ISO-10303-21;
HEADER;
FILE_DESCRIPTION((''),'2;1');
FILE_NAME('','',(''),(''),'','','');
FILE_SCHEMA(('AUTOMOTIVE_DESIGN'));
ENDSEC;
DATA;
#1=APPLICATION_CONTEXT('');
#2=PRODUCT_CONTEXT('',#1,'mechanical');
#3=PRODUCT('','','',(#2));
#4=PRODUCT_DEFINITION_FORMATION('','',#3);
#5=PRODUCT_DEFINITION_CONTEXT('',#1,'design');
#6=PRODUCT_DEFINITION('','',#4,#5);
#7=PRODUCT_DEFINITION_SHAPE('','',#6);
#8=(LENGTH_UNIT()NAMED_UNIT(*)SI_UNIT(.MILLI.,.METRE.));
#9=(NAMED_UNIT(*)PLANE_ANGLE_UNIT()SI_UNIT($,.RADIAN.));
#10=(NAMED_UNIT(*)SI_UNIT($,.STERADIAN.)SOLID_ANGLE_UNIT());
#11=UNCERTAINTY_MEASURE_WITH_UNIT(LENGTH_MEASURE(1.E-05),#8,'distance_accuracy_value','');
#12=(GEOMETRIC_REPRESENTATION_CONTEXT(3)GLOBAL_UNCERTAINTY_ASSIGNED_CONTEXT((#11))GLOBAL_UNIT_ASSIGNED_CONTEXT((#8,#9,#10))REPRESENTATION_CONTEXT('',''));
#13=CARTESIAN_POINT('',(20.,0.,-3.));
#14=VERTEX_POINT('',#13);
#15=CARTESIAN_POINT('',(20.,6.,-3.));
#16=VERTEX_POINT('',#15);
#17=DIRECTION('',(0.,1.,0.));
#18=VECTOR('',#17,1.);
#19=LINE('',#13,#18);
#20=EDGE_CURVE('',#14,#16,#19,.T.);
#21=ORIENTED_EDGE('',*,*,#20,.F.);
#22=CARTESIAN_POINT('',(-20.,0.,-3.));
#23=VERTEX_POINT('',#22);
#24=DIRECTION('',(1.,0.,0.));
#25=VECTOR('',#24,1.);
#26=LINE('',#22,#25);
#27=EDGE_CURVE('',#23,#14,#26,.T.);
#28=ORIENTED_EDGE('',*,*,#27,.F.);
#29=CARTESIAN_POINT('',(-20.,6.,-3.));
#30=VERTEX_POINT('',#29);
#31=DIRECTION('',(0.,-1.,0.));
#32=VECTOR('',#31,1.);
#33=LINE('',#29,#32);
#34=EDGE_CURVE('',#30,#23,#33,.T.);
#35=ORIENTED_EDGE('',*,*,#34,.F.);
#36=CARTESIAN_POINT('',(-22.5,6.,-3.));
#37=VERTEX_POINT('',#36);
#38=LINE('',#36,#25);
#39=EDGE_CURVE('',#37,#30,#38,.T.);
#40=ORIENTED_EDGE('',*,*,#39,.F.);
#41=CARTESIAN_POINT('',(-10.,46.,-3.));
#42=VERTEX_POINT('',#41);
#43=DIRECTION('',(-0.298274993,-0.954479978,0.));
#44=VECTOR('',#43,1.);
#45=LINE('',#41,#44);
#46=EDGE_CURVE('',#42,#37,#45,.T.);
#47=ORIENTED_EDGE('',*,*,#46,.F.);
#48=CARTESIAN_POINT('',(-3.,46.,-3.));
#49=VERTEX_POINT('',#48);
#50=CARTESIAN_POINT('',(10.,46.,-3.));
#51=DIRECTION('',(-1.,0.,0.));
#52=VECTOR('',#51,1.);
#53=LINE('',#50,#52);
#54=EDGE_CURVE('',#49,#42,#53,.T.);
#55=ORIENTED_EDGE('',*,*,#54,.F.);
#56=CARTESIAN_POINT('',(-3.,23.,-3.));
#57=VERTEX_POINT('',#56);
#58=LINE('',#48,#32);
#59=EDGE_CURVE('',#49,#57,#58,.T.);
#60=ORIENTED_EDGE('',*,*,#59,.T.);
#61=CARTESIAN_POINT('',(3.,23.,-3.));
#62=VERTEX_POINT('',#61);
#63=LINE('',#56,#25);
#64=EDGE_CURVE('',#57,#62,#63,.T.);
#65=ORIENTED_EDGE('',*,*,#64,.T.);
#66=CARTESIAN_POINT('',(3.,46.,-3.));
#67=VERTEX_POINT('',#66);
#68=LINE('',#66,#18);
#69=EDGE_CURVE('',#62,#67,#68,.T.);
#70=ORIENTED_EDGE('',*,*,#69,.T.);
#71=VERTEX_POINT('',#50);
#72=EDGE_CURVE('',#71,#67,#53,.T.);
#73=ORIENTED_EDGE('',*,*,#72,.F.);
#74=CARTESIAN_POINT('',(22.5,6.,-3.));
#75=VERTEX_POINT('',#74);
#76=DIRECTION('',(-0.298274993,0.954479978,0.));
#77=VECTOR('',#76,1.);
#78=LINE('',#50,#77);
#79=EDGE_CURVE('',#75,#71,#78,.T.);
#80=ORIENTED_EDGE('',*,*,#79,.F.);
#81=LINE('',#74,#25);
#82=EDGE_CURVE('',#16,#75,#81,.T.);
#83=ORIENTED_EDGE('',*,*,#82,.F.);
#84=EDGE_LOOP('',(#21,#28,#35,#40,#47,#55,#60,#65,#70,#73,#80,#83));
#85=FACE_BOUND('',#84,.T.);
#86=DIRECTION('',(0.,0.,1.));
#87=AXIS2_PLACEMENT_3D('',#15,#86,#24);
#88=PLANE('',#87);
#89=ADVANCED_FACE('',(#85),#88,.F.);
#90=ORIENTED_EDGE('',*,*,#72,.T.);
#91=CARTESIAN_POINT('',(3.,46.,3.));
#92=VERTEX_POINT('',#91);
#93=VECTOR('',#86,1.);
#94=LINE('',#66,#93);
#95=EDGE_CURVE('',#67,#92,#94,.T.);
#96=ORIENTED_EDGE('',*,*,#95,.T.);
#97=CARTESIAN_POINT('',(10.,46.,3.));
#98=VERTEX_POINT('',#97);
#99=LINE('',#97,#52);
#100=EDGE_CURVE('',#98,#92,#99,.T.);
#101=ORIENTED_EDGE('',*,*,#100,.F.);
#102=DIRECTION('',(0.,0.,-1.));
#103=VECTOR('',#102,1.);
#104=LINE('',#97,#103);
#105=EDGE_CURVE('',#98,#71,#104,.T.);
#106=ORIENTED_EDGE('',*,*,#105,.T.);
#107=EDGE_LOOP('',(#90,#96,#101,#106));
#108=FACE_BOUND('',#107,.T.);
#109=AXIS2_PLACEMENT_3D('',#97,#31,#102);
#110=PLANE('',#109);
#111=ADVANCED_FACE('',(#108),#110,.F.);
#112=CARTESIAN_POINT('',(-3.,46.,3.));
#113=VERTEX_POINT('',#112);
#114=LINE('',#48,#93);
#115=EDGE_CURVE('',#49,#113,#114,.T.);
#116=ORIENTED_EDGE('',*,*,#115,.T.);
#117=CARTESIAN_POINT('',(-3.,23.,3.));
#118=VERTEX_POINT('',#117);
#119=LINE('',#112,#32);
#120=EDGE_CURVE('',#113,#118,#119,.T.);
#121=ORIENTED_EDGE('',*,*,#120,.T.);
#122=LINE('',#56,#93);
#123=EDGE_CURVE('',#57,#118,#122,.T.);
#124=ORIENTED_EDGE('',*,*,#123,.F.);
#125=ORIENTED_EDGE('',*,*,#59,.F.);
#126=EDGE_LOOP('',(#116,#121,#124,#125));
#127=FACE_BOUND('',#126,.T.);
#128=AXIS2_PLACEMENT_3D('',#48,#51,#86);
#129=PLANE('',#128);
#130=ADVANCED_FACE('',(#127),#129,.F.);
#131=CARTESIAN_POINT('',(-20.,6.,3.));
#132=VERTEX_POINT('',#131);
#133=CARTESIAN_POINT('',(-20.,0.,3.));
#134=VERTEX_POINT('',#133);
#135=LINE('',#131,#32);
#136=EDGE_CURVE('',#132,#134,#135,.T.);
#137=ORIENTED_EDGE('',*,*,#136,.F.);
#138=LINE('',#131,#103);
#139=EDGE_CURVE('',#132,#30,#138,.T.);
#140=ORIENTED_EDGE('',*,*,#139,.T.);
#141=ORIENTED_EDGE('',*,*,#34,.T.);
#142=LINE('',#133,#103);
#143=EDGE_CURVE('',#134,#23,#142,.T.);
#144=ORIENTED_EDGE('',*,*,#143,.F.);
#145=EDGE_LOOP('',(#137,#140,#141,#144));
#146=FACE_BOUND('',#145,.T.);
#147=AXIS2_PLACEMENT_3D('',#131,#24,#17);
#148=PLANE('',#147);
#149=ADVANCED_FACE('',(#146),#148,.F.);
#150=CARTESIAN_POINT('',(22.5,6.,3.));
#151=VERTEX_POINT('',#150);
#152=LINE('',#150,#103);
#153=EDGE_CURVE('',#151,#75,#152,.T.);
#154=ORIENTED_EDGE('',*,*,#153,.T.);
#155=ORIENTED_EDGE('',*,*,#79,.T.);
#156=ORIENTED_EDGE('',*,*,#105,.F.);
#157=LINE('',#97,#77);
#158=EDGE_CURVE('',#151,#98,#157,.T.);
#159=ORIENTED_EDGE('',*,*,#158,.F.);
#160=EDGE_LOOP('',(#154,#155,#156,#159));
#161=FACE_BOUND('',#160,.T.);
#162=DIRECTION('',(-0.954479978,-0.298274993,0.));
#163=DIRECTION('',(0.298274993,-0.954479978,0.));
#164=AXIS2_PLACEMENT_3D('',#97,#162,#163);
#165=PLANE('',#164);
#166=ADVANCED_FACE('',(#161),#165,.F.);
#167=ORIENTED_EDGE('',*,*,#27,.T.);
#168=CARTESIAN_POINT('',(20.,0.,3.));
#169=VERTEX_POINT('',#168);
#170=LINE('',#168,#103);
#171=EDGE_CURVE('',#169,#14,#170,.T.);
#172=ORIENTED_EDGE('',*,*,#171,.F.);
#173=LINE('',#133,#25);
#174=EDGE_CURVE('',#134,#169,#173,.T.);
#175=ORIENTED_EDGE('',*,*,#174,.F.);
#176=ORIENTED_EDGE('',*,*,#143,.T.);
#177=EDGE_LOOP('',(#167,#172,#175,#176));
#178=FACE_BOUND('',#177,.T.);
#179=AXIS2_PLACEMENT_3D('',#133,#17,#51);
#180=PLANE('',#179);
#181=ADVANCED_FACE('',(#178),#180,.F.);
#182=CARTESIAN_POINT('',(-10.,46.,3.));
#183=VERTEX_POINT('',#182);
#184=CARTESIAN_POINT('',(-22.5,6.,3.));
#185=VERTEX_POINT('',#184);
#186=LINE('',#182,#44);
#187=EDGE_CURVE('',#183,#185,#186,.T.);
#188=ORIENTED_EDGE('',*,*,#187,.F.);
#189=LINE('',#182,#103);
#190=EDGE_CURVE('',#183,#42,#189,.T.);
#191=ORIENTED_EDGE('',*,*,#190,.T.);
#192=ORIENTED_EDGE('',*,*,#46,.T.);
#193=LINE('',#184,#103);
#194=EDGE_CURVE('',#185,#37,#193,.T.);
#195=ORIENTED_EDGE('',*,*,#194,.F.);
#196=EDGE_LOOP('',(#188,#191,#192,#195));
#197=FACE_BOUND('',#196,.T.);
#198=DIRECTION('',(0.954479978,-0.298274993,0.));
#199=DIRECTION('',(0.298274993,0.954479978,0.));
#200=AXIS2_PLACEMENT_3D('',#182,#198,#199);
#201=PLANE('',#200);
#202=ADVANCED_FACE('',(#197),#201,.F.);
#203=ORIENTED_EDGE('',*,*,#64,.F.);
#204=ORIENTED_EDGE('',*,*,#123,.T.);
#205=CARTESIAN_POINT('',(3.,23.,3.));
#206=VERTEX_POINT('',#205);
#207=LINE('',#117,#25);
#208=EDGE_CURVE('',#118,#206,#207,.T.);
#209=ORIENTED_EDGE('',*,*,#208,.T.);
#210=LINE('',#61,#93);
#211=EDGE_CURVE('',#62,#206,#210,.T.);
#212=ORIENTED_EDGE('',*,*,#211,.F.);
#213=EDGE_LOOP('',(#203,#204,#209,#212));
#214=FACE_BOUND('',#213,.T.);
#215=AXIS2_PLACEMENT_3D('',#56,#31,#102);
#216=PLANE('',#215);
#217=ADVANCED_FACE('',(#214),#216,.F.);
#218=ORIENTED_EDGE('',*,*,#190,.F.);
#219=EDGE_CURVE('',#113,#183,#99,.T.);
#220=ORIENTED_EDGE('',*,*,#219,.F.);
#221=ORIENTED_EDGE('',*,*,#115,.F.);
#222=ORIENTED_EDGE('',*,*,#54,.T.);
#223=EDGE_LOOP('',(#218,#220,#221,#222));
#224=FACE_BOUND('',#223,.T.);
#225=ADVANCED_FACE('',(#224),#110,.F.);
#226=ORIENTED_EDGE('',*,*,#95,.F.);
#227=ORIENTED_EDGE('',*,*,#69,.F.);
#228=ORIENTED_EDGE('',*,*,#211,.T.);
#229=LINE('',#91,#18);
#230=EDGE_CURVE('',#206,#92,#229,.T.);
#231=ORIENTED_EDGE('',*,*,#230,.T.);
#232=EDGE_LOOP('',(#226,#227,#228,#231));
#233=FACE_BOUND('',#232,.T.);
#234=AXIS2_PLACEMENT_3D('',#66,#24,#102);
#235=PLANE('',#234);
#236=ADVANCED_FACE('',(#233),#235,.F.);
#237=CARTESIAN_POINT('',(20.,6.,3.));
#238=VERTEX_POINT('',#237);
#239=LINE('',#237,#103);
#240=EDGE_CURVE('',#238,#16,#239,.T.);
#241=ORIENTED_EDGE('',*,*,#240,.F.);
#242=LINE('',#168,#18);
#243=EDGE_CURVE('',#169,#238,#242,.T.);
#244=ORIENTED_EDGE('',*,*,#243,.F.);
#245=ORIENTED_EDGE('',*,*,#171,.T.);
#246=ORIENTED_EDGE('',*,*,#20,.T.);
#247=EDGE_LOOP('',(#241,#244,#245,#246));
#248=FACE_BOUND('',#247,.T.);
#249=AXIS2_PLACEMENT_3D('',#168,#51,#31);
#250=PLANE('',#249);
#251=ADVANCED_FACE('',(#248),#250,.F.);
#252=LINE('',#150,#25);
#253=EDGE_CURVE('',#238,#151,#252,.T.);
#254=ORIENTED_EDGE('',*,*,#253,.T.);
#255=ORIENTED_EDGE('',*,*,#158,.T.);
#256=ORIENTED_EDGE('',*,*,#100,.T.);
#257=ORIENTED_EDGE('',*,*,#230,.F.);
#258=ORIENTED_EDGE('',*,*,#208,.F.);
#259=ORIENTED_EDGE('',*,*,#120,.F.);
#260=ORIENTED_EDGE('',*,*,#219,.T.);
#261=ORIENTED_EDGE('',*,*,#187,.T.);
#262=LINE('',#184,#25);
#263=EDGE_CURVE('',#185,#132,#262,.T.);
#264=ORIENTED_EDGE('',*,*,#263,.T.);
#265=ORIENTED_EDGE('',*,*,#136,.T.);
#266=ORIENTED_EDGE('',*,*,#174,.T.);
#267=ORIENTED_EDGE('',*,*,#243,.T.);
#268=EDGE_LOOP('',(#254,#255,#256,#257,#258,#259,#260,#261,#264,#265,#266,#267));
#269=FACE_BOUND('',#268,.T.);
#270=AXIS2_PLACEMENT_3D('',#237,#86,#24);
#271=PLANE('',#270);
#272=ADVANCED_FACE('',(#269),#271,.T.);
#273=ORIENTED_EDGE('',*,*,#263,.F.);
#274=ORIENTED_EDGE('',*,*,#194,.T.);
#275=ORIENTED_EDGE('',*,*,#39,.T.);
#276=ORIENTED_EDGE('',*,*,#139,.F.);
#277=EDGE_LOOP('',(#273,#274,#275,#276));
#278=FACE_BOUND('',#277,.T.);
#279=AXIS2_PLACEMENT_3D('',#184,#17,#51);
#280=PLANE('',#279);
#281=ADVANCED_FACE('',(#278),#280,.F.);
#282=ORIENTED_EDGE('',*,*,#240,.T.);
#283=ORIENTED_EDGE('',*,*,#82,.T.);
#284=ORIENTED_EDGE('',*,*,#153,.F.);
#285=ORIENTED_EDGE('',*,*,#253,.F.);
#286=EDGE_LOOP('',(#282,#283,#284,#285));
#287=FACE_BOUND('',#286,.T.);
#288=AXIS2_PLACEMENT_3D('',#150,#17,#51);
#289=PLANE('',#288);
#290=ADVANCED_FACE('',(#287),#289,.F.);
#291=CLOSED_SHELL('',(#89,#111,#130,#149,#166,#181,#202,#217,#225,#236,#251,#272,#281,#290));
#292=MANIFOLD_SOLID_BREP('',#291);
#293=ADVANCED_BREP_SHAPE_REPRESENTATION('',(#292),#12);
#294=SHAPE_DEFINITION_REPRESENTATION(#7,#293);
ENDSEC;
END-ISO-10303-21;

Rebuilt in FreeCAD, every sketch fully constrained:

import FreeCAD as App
import Part
import Sketcher
from FreeCAD import Vector

doc = App.newDocument("Part")
body = doc.addObject("PartDesign::Body", "Body")

sketch1 = body.newObject("Sketcher::SketchObject", "Sketch")
sketch1.AttachmentSupport = (doc.getObject("XY_Plane"), [""])
sketch1.MapMode = "FlatFace"
sketch1.addGeometry([
    Part.LineSegment(Vector(-20, 0, 0), Vector(20, 0, 0)),
    Part.LineSegment(Vector(20, 0, 0), Vector(20, 6, 0)),
    Part.LineSegment(Vector(20, 6, 0), Vector(22.5, 6, 0)),
    Part.LineSegment(Vector(22.5, 6, 0), Vector(10, 46, 0)),
    Part.LineSegment(Vector(10, 46, 0), Vector(-10, 46, 0)),
    Part.LineSegment(Vector(-10, 46, 0), Vector(-22.5, 6, 0)),
    Part.LineSegment(Vector(-22.5, 6, 0), Vector(-20, 6, 0)),
    Part.LineSegment(Vector(-20, 6, 0), Vector(-20, 0, 0)),
], False)
sketch1.addConstraint([
    Sketcher.Constraint("Coincident", 0, 2, 1, 1),
    Sketcher.Constraint("Coincident", 1, 2, 2, 1),
    Sketcher.Constraint("Coincident", 2, 2, 3, 1),
    Sketcher.Constraint("Coincident", 3, 2, 4, 1),
    Sketcher.Constraint("Coincident", 4, 2, 5, 1),
    Sketcher.Constraint("Coincident", 5, 2, 6, 1),
    Sketcher.Constraint("Coincident", 6, 2, 7, 1),
    Sketcher.Constraint("Coincident", 7, 2, 0, 1),
    Sketcher.Constraint("Horizontal", 0),
    Sketcher.Constraint("Vertical", 1),
    Sketcher.Constraint("Horizontal", 2),
    Sketcher.Constraint("Horizontal", 4),
    Sketcher.Constraint("Horizontal", 6),
    Sketcher.Constraint("Vertical", 7),
    Sketcher.Constraint("Symmetric", 0, 2, 7, 2, -1, 1),
    Sketcher.Constraint("Symmetric", 2, 2, 5, 2, -2),
    Sketcher.Constraint("Equal", 3, 5),
    Sketcher.Constraint("DistanceX", 0, 1, 0, 2, 40.0),
    Sketcher.Constraint("DistanceX", 4, 2, 4, 1, 20.0),
    Sketcher.Constraint("DistanceY", 1, 1, 1, 2, 6.0),
    Sketcher.Constraint("DistanceX", 2, 1, 2, 2, 2.5),
    Sketcher.Constraint("DistanceY", -1, 1, 3, 2, 46.0),
])
pad1 = body.newObject("PartDesign::Pad", "Pad")
pad1.Profile = sketch1
pad1.Length = 6
pad1.Midplane = True

sketch2 = body.newObject("Sketcher::SketchObject", "Sketch001")
sketch2.AttachmentSupport = (doc.getObject("XY_Plane"), [""])
sketch2.MapMode = "FlatFace"
sketch2.AttachmentOffset = App.Placement(Vector(0, 0, 3), App.Rotation())
sketch2.addGeometry([
    Part.LineSegment(Vector(-3, 46, 0), Vector(-3, 23, 0)),
    Part.LineSegment(Vector(-3, 23, 0), Vector(3, 23, 0)),
    Part.LineSegment(Vector(3, 23, 0), Vector(3, 46, 0)),
    Part.LineSegment(Vector(3, 46, 0), Vector(-3, 46, 0)),
], False)
sketch2.addConstraint([
    Sketcher.Constraint("Coincident", 0, 2, 1, 1),
    Sketcher.Constraint("Coincident", 1, 2, 2, 1),
    Sketcher.Constraint("Coincident", 2, 2, 3, 1),
    Sketcher.Constraint("Coincident", 3, 2, 0, 1),
    Sketcher.Constraint("Vertical", 0),
    Sketcher.Constraint("Horizontal", 1),
    Sketcher.Constraint("Vertical", 2),
    Sketcher.Constraint("Horizontal", 3),
    Sketcher.Constraint("DistanceX", 1, 1, 1, 2, 6.0),
    Sketcher.Constraint("DistanceY", 0, 2, 0, 1, 23.0),
    Sketcher.Constraint("DistanceX", 0, 2, -1, 1, 3.0),
    Sketcher.Constraint("DistanceY", -1, 1, 0, 2, 23.0),
])
pocket1 = body.newObject("PartDesign::Pocket", "Pocket")
pocket1.Profile = sketch2
pocket1.Type = "ThroughAll"

doc.recompute()
